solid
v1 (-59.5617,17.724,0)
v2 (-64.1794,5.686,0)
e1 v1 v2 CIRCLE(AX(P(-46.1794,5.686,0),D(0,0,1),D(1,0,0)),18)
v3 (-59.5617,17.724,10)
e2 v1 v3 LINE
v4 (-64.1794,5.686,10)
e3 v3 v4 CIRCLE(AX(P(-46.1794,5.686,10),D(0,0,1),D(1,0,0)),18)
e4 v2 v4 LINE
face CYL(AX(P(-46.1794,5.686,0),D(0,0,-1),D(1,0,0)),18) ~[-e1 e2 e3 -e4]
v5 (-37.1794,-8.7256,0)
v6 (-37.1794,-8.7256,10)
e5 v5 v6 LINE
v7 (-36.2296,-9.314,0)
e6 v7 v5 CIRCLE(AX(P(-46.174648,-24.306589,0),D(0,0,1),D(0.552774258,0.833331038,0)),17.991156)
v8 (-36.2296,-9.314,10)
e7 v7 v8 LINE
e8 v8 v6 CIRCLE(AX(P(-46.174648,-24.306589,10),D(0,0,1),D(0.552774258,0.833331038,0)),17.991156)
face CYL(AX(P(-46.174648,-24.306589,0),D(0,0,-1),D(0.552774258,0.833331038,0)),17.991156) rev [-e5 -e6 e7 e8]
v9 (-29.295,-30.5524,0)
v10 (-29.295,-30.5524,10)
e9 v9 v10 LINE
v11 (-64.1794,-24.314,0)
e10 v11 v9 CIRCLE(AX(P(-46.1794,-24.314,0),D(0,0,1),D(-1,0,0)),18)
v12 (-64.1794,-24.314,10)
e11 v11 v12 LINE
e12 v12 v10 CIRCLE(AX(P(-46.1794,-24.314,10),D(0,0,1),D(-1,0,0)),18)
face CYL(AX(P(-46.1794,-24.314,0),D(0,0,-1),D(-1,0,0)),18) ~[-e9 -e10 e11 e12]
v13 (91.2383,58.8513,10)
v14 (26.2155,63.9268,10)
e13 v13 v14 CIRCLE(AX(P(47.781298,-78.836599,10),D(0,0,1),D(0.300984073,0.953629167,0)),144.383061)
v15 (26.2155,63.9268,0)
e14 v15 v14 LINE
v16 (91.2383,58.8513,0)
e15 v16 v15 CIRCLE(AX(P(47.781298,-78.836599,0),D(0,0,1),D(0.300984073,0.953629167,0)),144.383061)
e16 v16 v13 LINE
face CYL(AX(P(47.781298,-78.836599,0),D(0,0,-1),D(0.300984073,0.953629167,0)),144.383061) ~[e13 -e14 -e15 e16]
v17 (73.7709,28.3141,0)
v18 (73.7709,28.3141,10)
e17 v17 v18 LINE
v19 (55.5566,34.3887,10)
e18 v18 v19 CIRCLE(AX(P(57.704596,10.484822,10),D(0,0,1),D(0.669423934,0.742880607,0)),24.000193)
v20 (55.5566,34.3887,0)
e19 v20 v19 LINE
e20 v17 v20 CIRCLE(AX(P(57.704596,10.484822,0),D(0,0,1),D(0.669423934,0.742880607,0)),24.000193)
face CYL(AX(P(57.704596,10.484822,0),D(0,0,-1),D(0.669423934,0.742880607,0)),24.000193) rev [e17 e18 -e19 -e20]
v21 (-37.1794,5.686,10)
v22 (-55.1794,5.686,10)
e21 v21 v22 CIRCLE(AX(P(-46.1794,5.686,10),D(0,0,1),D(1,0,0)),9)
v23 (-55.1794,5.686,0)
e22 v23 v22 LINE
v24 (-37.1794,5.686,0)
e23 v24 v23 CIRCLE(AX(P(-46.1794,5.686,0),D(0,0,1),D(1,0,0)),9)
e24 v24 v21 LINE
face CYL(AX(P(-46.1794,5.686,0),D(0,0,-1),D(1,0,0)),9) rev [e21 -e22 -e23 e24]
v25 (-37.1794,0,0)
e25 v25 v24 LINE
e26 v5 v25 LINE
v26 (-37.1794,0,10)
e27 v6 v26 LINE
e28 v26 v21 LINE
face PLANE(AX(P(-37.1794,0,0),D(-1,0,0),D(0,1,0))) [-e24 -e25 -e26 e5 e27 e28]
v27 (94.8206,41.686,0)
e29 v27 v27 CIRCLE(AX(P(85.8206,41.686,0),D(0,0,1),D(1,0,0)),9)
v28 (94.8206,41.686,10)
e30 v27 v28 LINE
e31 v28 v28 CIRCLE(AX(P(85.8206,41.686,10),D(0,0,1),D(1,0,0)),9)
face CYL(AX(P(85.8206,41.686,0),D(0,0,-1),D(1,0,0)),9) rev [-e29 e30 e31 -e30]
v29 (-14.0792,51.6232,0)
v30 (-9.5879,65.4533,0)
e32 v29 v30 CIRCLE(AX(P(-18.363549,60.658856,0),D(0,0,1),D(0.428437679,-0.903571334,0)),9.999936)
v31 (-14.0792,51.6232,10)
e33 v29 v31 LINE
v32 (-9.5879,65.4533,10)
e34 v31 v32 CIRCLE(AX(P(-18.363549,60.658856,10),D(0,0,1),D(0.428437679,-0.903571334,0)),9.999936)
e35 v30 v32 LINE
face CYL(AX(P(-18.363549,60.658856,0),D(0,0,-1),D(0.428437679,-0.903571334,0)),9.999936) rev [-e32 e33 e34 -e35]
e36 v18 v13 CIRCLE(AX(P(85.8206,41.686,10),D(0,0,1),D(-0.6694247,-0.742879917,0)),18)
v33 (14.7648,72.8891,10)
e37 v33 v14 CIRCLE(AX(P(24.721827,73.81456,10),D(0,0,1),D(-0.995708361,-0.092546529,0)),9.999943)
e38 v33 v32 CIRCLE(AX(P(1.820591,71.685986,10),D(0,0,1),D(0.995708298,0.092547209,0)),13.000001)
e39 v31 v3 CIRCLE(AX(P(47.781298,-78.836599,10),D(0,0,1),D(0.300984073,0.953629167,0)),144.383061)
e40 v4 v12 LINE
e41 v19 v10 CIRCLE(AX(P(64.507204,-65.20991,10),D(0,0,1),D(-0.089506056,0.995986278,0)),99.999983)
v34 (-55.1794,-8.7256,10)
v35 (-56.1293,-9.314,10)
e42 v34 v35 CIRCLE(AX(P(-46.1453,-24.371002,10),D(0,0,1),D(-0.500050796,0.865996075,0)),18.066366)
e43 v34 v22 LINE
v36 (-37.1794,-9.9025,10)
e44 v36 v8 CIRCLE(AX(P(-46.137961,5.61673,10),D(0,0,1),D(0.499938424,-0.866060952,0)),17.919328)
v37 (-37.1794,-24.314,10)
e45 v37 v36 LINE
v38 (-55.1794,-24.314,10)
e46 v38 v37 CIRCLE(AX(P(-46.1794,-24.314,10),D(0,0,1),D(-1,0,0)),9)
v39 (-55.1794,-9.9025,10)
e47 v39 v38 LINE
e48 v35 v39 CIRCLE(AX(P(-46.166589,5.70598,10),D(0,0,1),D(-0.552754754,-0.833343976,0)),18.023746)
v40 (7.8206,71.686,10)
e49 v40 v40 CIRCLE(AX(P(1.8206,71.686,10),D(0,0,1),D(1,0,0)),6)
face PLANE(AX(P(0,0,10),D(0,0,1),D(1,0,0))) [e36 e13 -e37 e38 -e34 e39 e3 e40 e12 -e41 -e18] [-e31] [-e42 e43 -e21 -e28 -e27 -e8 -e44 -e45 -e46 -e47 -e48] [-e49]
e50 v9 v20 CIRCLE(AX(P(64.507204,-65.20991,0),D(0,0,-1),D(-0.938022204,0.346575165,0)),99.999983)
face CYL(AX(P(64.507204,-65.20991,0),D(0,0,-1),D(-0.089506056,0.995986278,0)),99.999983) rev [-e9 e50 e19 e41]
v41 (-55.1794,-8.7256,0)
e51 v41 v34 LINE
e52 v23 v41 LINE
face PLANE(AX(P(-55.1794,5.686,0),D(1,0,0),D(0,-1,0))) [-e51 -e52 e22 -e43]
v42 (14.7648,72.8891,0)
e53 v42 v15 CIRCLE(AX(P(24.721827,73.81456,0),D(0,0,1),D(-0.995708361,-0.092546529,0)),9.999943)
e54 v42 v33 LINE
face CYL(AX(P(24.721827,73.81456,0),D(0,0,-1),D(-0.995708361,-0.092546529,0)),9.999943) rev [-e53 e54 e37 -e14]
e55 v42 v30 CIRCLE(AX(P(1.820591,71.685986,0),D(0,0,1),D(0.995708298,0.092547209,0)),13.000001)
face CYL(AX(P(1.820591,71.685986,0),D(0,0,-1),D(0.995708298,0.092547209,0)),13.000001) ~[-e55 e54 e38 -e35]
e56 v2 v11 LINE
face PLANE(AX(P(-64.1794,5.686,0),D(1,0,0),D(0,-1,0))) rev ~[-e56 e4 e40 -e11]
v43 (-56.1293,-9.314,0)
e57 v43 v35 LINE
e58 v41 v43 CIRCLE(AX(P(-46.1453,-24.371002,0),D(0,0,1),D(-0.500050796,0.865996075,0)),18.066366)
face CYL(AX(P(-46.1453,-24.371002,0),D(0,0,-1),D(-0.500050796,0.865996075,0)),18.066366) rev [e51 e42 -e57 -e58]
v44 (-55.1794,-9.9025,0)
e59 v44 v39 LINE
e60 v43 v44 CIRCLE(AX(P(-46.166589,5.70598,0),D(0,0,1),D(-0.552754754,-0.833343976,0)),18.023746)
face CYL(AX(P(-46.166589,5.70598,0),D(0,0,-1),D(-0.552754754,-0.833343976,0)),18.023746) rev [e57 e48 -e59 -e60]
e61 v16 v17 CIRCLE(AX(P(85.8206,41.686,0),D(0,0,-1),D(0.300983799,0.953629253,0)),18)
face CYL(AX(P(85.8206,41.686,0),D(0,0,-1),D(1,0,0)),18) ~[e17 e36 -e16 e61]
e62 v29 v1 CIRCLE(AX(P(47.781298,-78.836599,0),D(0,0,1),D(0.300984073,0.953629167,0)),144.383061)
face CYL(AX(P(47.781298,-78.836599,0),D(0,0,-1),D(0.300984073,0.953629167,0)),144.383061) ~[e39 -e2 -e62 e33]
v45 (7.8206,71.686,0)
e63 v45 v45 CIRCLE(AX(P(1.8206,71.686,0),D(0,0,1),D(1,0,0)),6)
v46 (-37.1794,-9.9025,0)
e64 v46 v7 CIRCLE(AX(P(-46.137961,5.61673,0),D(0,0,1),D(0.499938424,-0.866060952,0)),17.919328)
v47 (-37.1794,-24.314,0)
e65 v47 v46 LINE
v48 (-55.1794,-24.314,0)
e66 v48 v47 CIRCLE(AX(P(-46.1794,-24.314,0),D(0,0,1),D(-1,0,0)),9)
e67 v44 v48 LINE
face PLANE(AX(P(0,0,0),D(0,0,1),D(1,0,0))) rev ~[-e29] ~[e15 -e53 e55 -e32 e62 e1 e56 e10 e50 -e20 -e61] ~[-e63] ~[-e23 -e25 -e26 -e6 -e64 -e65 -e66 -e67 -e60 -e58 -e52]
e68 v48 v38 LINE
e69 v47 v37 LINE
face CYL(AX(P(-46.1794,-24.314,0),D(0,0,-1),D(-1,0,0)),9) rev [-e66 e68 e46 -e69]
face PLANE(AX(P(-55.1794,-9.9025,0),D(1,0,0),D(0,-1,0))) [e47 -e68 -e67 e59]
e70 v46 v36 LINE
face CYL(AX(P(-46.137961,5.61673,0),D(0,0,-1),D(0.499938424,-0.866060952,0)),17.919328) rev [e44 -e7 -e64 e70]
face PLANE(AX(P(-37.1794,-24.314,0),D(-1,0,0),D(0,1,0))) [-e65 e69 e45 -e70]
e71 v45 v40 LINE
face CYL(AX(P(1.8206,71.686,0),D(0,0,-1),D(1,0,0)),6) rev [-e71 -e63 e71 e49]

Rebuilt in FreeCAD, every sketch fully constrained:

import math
import FreeCAD as App
import Part
import Sketcher
from FreeCAD import Vector

doc = App.newDocument("Part")
body = doc.addObject("PartDesign::Body", "Body")

# Sketch on XY plane
sketch1 = body.newObject("Sketcher::SketchObject", "Sketch")
sketch1.AttachmentSupport = (doc.getObject("XY_Plane"), [""])
sketch1.MapMode = "FlatFace"
sketch1.addGeometry(Part.ArcOfCircle(Part.Circle(Vector(57.7, 10.5, 0), Vector(0, 0, 1), 24), math.radians(48), math.radians(95)), False)
sketch1.addGeometry(Part.ArcOfCircle(Part.Circle(Vector(85.8, 41.7, 0), Vector(0, 0, 1), 18), math.radians(-132), math.radians(72)), False)
sketch1.addGeometry(Part.ArcOfCircle(Part.Circle(Vector(47.8, -78.8, 0), Vector(0, 0, 1), 144.4), math.radians(72), math.radians(99)), False)
sketch1.addGeometry(Part.ArcOfCircle(Part.Circle(Vector(24.7, 73.8, 0), Vector(0, 0, 1), 10), math.radians(-175), math.radians(-81)), False)
sketch1.addGeometry(Part.ArcOfCircle(Part.Circle(Vector(1.8, 71.7, 0), Vector(0, 0, 1), 13), math.radians(5), math.radians(209)), False)
sketch1.addGeometry(Part.ArcOfCircle(Part.Circle(Vector(-18.4, 60.7, 0), Vector(0, 0, 1), 10), math.radians(-65), math.radians(29)), False)
sketch1.addGeometry(Part.ArcOfCircle(Part.Circle(Vector(47.8, -78.8, 0), Vector(0, 0, 1), 144.4), math.radians(115), math.radians(138)), False)
sketch1.addGeometry(Part.ArcOfCircle(Part.Circle(Vector(-46.2, 5.7, 0), Vector(0, 0, 1), 18), math.radians(138), math.radians(180)), False)
sketch1.addGeometry(Part.LineSegment(Vector(-64.2, 5.7, 0), Vector(-64.2, -24.3, 0)), False)
sketch1.addGeometry(Part.ArcOfCircle(Part.Circle(Vector(-46.2, -24.3, 0), Vector(0, 0, 1), 18), math.radians(180), math.radians(340)), False)
sketch1.addGeometry(Part.ArcOfCircle(Part.Circle(Vector(64.5, -65.2, 0), Vector(0, 0, 1), 100), math.radians(95), math.radians(160)), False)
sketch1.addGeometry(Part.ArcOfCircle(Part.Circle(Vector(-46.1, 5.6, 0), Vector(0, 0, 1), 17.9), math.radians(-60), math.radians(-56.43)), False)
sketch1.addGeometry(Part.LineSegment(Vector(-37.2, -9.9, 0), Vector(-37.2, -24.3, 0)), False)
sketch1.addGeometry(Part.ArcOfCircle(Part.Circle(Vector(-46.2, -24.3, 0), Vector(0, 0, 1), 9), math.radians(180), math.radians(360)), False)
sketch1.addGeometry(Part.LineSegment(Vector(-55.2, -24.3, 0), Vector(-55.2, -9.9, 0)), False)
sketch1.addGeometry(Part.ArcOfCircle(Part.Circle(Vector(-46.2, 5.7, 0), Vector(0, 0, 1), 18), math.radians(-123.56), math.radians(-120)), False)
sketch1.addGeometry(Part.ArcOfCircle(Part.Circle(Vector(-46.1, -24.4, 0), Vector(0, 0, 1), 18.1), math.radians(120), math.radians(123.55)), False)
sketch1.addGeometry(Part.LineSegment(Vector(-55.2, -8.7, 0), Vector(-55.2, 5.7, 0)), False)
sketch1.addGeometry(Part.ArcOfCircle(Part.Circle(Vector(-46.2, 5.7, 0), Vector(0, 0, 1), 9), math.radians(0), math.radians(180)), False)
sketch1.addGeometry(Part.LineSegment(Vector(-37.2, 5.7, 0), Vector(-37.2, 0, 0)), False)
sketch1.addGeometry(Part.LineSegment(Vector(-37.2, 0, 0), Vector(-37.2, -8.7, 0)), False)
sketch1.addGeometry(Part.ArcOfCircle(Part.Circle(Vector(-46.2, -24.3, 0), Vector(0, 0, 1), 18), math.radians(56.44), math.radians(60)), False)
sketch1.addGeometry(Part.Circle(Vector(1.8, 71.7, 0), Vector(0, 0, 1), 6), False)
sketch1.addGeometry(Part.Circle(Vector(85.8, 41.7, 0), Vector(0, 0, 1), 9), False)
sketch1.addConstraint(Sketcher.Constraint("Tangent", 0, 1, 1, 1))
sketch1.addConstraint(Sketcher.Constraint("Tangent", 1, 2, 2, 1))
sketch1.addConstraint(Sketcher.Constraint("Tangent", 2, 2, 3, 2))
sketch1.addConstraint(Sketcher.Constraint("Tangent", 3, 1, 4, 1))
sketch1.addConstraint(Sketcher.Constraint("Tangent", 4, 2, 5, 2))
sketch1.addConstraint(Sketcher.Constraint("Tangent", 5, 1, 6, 1))
sketch1.addConstraint(Sketcher.Constraint("Tangent", 6, 2, 7, 1))
sketch1.addConstraint(Sketcher.Constraint("Tangent", 7, 2, 8, 1))
sketch1.addConstraint(Sketcher.Constraint("Tangent", 8, 2, 9, 1))
sketch1.addConstraint(Sketcher.Constraint("Tangent", 9, 2, 10, 2))
sketch1.addConstraint(Sketcher.Constraint("Tangent", 10, 1, 0, 2))
sketch1.addConstraint(Sketcher.Constraint("Coincident", 11, 1, 12, 1))
sketch1.addConstraint(Sketcher.Constraint("Tangent", 12, 2, 13, 2))
sketch1.addConstraint(Sketcher.Constraint("Tangent", 13, 1, 14, 1))
sketch1.addConstraint(Sketcher.Constraint("Coincident", 14, 2, 15, 2))
sketch1.addConstraint(Sketcher.Constraint("Coincident", 15, 1, 16, 2))
sketch1.addConstraint(Sketcher.Constraint("Coincident", 16, 1, 17, 1))
sketch1.addConstraint(Sketcher.Constraint("Tangent", 17, 2, 18, 2))
sketch1.addConstraint(Sketcher.Constraint("Tangent", 18, 1, 19, 1))
sketch1.addConstraint(Sketcher.Constraint("Coincident", 19, 2, 20, 1))
sketch1.addConstraint(Sketcher.Constraint("Coincident", 20, 2, 21, 2))
sketch1.addConstraint(Sketcher.Constraint("Coincident", 21, 1, 11, 2))
sketch1.addConstraint(Sketcher.Constraint("Vertical", 8))
sketch1.addConstraint(Sketcher.Constraint("Vertical", 12))
sketch1.addConstraint(Sketcher.Constraint("Vertical", 14))
sketch1.addConstraint(Sketcher.Constraint("Vertical", 17))
sketch1.addConstraint(Sketcher.Constraint("Vertical", 19))
sketch1.addConstraint(Sketcher.Constraint("Vertical", 20))
sketch1.addConstraint(Sketcher.Constraint("Coincident", 6, 3, 2, 3))
sketch1.addConstraint(Sketcher.Constraint("Coincident", 13, 3, 9, 3))
sketch1.addConstraint(Sketcher.Constraint("Coincident", 18, 3, 7, 3))
sketch1.addConstraint(Sketcher.Constraint("Coincident", 22, 3, 4, 3))
sketch1.addConstraint(Sketcher.Constraint("Coincident", 23, 3, 1, 3))
sketch1.addConstraint(Sketcher.Constraint("Equal", 3, 5))
sketch1.addConstraint(Sketcher.Constraint("Equal", 2, 6))
sketch1.addConstraint(Sketcher.Constraint("Equal", 1, 7))
sketch1.addConstraint(Sketcher.Constraint("Equal", 7, 9))
sketch1.addConstraint(Sketcher.Constraint("Equal", 13, 18))
sketch1.addConstraint(Sketcher.Constraint("Equal", 18, 23))
sketch1.addConstraint(Sketcher.Constraint("PointOnObject", 19, 2, -1))
sketch1.addConstraint(Sketcher.Constraint("Horizontal", 11, 1, 14, 2))
sketch1.addConstraint(Sketcher.Constraint("Horizontal", 16, 1, 20, 2))
sketch1.addConstraint(Sketcher.Constraint("Horizontal", 15, 1, 21, 1))
sketch1.addConstraint(Sketcher.Constraint("Equal", 14, 17))
sketch1.addConstraint(Sketcher.Constraint("Diameter", 22, 12.0))
sketch1.addConstraint(Sketcher.Constraint("Diameter", 23, 18.0))
sketch1.addConstraint(Sketcher.Constraint("Radius", 0, 24.0))
sketch1.addConstraint(Sketcher.Constraint("Radius", 1, 18.0))
sketch1.addConstraint(Sketcher.Constraint("Radius", 3, 10.0))
sketch1.addConstraint(Sketcher.Constraint("Radius", 4, 13.0))
sketch1.addConstraint(Sketcher.Constraint("Radius", 10, 100.0))
sketch1.addConstraint(Sketcher.Constraint("DistanceY", 8, 2, 8, 1, 30.0))
sketch1.addConstraint(Sketcher.Constraint("DistanceX", 4, 3, 1, 3, 84.0))
sketch1.addConstraint(Sketcher.Constraint("DistanceY", 1, 3, 4, 3, 30.0))
sketch1.addConstraint(Sketcher.Constraint("DistanceX", 7, 3, 4, 3, 48.0))
sketch1.addConstraint(Sketcher.Constraint("DistanceY", 7, 3, 4, 3, 66.0))
sketch1.addConstraint(Sketcher.Constraint("Radius", 2, 144.383))
sketch1.addConstraint(Sketcher.Constraint("DistanceY", 13, 1, 15, 1, 15.0))
sketch1.addConstraint(Sketcher.Constraint("Radius", 11, 17.9193))
sketch1.addConstraint(Sketcher.Constraint("Radius", 15, 18.0237))
sketch1.addConstraint(Sketcher.Constraint("Radius", 16, 18.0664))
sketch1.addConstraint(Sketcher.Constraint("Radius", 21, 17.9912))
sketch1.addConstraint(Sketcher.Constraint("DistanceY", 19, 2, 19, 1, 5.686))
sketch1.addConstraint(Sketcher.Constraint("DistanceY", 10, 3, -1, 1, 65.21))
sketch1.addConstraint(Sketcher.Constraint("DistanceY", 7, 3, 15, 3, 0.02))
sketch1.addConstraint(Sketcher.Constraint("DistanceX", 15, 1, 14, 2, 0.95))
sketch1.addConstraint(Sketcher.Constraint("DistanceX", -1, 1, 3, 3, 24.722))
sketch1.addConstraint(Sketcher.Constraint("DistanceX", 11, 3, -1, 1, 46.138))
pad1 = body.newObject("PartDesign::Pad", "Pad")
pad1.Profile = sketch1
pad1.Length = 10

doc.recompute()
